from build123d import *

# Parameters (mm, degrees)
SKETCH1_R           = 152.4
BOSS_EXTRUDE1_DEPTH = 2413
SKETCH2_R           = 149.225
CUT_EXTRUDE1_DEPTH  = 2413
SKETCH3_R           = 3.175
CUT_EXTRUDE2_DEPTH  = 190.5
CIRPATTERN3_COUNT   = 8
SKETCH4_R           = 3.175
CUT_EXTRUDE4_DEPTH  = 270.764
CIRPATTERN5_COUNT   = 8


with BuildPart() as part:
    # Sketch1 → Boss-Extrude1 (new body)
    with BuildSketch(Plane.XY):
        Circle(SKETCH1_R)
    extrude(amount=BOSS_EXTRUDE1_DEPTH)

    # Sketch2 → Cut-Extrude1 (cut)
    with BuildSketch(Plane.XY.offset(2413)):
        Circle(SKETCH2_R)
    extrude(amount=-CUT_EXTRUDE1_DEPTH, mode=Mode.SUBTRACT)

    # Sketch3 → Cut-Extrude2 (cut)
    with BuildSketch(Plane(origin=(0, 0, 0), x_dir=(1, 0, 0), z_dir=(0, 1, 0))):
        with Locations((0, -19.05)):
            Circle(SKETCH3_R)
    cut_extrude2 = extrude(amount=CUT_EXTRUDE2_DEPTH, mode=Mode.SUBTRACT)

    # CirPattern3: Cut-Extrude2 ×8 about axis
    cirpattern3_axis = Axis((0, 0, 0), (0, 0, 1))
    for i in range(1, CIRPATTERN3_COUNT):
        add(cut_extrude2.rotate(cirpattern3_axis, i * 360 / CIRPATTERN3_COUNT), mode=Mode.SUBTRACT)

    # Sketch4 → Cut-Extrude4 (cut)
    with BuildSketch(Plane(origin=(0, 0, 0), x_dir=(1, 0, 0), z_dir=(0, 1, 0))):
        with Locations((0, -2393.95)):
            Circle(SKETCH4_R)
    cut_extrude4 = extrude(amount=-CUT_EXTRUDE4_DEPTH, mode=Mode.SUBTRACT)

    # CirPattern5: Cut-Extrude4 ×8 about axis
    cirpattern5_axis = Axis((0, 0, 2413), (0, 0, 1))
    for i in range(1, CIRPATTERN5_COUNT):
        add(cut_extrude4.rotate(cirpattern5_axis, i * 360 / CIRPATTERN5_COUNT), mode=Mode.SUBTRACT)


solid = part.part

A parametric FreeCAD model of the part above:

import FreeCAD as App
import Part
import Sketcher

V = App.Vector
Q = App.Units.Quantity

doc = App.newDocument("Part")
body = doc.addObject("PartDesign::Body", "Body")

sketch1 = body.newObject("Sketcher::SketchObject", "Sketch")
sketch1.AttachmentSupport = (doc.getObject("XY_Plane"), [""])
sketch1.MapMode = "FlatFace"
sketch1.addGeometry(Part.Circle(V(0, 0, 0), V(0, 0, 1), 152.4), False)
sketch1.addConstraint([
    Sketcher.Constraint("Coincident", 0, 3, -1, 1),
    Sketcher.Constraint("Diameter", 0, Q("12 in")),
])
pad1 = body.newObject("PartDesign::Pad", "Pad")
pad1.Profile = sketch1
pad1.Length = Q("95 in")

sketch2 = body.newObject("Sketcher::SketchObject", "Sketch001")
sketch2.AttachmentSupport = (doc.getObject("XY_Plane"), [""])
sketch2.MapMode = "FlatFace"
sketch2.AttachmentOffset = App.Placement(V(0, 0, 95 * 25.4), App.Rotation())
sketch2.addGeometry(Part.Circle(V(0, 0, 0), V(0, 0, 1), 149.225), False)
sketch2.addConstraint([
    Sketcher.Constraint("Coincident", 0, 3, -1, 1),
    Sketcher.Constraint("Diameter", 0, Q("11.75 in")),
])
pocket1 = body.newObject("PartDesign::Pocket", "Pocket")
pocket1.Profile = sketch2
pocket1.Length = Q("95 in")

sketch3 = body.newObject("Sketcher::SketchObject", "Sketch002")
sketch3.AttachmentSupport = (doc.getObject("XZ_Plane"), [""])
sketch3.MapMode = "FlatFace"
sketch3.addGeometry(Part.Circle(V(0, 19.05, 0), V(0, 0, 1), 3.175), False)
sketch3.addConstraint([
    Sketcher.Constraint("PointOnObject", 0, 3, -2),
    Sketcher.Constraint("Diameter", 0, Q("0.25 in")),
    Sketcher.Constraint("DistanceY", -1, 1, 0, 3, Q("0.75 in")),
])
pocket2 = body.newObject("PartDesign::Pocket", "Pocket001")
pocket2.Profile = sketch3
pocket2.Length = Q("7.5 in")
doc.recompute()

polarpattern = body.newObject("PartDesign::PolarPattern", "PolarPattern")
polarpattern.Originals = [pocket2]
polarpattern.Axis = (doc.getObject("Z_Axis"), [""])
polarpattern.Angle = 360
polarpattern.Occurrences = 8
body.Tip = polarpattern

sketch4 = body.newObject("Sketcher::SketchObject", "Sketch003")
sketch4.AttachmentSupport = (doc.getObject("XZ_Plane"), [""])
sketch4.MapMode = "FlatFace"
sketch4.addGeometry(Part.Circle(V(0, 2393.95, 0), V(0, 0, 1), 3.175), False)
sketch4.addConstraint([
    Sketcher.Constraint("PointOnObject", 0, 3, -2),
    Sketcher.Constraint("Diameter", 0, Q("0.25 in")),
    Sketcher.Constraint("DistanceY", -1, 1, 0, 3, Q("94.25 in")),
])
pocket3 = body.newObject("PartDesign::Pocket", "Pocket002")
pocket3.Profile = sketch4
pocket3.Length = Q("10.66 in")
pocket3.Reversed = True
doc.recompute()

polarpattern2 = body.newObject("PartDesign::PolarPattern", "PolarPattern001")
polarpattern2.Originals = [pocket3]
polarpattern2.Axis = (doc.getObject("Z_Axis"), [""])
polarpattern2.Angle = 360
polarpattern2.Occurrences = 8
body.Tip = polarpattern2

doc.recompute()
